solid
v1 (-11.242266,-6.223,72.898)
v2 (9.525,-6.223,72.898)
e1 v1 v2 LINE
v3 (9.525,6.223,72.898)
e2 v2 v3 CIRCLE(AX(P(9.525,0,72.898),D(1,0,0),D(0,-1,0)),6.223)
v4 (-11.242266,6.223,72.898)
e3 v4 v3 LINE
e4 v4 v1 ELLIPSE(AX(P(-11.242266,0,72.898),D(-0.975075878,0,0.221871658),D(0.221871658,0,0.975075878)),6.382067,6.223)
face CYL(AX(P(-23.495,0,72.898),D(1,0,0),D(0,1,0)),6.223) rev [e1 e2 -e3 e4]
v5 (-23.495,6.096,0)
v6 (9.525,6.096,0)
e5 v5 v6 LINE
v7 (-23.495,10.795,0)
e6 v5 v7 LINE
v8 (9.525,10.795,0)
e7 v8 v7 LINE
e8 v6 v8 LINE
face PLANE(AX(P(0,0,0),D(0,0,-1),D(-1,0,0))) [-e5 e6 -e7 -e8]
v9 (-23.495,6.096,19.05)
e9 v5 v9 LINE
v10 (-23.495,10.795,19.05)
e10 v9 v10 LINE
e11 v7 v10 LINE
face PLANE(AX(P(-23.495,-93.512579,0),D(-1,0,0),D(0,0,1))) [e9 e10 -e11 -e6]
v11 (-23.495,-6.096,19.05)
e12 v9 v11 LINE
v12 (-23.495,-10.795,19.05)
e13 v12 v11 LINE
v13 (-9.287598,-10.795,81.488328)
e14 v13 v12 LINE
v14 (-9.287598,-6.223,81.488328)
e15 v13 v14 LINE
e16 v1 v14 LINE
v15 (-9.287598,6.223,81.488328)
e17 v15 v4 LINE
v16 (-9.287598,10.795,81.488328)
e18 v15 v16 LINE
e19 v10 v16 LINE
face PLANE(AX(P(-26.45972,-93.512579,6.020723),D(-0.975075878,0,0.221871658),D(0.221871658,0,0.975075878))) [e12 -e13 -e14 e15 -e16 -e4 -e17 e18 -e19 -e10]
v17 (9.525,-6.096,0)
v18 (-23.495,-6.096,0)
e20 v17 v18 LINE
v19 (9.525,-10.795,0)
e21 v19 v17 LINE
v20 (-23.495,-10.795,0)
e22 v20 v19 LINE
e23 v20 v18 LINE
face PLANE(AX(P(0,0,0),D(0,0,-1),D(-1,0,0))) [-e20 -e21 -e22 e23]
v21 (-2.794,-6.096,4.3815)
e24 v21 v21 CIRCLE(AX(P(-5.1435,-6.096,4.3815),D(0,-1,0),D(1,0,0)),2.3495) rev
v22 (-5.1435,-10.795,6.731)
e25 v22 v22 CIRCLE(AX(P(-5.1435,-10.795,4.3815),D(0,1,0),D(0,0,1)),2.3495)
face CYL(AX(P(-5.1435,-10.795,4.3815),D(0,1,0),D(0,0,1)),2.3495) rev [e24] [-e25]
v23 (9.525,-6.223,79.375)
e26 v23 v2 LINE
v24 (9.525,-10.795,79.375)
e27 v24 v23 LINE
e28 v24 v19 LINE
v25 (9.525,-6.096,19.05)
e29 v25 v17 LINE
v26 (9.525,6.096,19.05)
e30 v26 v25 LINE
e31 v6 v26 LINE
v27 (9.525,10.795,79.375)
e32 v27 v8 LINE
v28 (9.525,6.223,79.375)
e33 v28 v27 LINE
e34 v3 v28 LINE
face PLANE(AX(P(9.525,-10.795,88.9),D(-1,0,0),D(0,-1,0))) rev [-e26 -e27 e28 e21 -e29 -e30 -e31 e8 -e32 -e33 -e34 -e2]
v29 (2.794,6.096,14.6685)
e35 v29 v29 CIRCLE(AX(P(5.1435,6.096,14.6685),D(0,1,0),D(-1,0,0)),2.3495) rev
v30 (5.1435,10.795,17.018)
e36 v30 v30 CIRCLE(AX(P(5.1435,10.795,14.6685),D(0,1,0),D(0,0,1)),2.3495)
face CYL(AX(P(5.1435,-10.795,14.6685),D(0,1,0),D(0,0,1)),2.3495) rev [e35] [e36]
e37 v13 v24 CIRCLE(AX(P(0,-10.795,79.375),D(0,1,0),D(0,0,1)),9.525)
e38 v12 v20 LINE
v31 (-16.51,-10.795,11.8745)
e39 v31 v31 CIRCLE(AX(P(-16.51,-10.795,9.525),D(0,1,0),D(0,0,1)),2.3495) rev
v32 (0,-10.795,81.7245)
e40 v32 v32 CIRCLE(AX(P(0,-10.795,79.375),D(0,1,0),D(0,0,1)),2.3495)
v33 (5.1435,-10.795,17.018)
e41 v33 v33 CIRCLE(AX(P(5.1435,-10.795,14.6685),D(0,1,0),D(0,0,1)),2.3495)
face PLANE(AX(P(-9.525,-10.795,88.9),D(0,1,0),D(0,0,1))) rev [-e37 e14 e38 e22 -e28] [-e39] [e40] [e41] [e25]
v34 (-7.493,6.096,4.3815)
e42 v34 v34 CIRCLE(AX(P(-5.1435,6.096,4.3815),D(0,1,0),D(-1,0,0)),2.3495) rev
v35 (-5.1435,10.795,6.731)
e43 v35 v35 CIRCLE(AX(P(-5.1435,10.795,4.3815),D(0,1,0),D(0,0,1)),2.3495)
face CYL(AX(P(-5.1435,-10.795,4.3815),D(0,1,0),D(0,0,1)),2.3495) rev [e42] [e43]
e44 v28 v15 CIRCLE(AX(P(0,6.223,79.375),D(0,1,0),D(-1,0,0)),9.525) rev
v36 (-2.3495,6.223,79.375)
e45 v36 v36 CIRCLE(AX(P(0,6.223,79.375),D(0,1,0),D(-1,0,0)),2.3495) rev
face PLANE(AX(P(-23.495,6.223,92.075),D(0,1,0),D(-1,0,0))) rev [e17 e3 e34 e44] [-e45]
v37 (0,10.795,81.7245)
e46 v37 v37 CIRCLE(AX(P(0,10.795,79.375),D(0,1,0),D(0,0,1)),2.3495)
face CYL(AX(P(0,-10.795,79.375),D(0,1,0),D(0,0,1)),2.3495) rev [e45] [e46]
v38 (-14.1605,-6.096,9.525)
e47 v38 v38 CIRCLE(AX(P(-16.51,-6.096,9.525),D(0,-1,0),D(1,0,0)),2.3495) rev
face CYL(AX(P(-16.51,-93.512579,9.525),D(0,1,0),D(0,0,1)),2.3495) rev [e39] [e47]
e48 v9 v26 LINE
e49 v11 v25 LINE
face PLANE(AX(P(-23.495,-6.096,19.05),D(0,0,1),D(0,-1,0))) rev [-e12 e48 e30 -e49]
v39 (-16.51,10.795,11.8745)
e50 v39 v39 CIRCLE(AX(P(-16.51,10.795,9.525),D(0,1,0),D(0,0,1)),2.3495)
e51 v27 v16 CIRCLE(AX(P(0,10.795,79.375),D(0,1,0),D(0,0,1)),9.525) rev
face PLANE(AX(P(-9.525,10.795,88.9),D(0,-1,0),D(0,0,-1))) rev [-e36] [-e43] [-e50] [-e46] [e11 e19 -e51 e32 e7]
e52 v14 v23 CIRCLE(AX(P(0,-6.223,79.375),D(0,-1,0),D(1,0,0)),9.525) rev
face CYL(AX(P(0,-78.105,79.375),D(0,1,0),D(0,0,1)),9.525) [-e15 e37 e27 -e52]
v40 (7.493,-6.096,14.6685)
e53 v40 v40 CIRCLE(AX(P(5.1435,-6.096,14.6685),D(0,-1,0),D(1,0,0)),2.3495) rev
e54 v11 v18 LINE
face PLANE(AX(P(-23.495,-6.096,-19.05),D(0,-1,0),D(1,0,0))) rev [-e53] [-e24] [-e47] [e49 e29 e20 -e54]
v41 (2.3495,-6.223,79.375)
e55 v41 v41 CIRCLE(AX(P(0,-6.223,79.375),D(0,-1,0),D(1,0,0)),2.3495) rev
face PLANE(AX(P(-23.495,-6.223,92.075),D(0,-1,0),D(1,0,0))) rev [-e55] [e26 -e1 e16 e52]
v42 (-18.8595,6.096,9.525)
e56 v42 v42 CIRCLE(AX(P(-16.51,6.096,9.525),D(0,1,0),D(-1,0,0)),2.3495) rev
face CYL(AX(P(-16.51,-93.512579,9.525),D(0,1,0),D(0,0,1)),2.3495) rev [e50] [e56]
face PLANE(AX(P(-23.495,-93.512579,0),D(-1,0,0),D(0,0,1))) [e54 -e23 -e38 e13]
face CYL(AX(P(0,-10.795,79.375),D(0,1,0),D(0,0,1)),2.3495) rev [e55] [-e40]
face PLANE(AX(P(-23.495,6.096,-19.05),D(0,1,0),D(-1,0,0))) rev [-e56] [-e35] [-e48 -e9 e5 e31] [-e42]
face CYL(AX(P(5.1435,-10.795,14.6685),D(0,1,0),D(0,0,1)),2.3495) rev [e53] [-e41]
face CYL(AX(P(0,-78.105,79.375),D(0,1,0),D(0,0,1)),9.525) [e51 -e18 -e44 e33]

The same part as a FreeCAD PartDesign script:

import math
import FreeCAD as App
import Part
import Sketcher
Q = App.Units.Quantity


def add_polygon(sketch, points):
    """Adds a closed chain of lines whose ends are joined by coincident constraints."""
    first, n = sketch.GeometryCount, len(points)
    for a, b in zip(points, points[1:] + points[:1]):
        sketch.addGeometry(Part.LineSegment(App.Vector(*a, 0), App.Vector(*b, 0)), False)
    for i in range(n):
        sketch.addConstraint(Sketcher.Constraint("Coincident", first + i, 2, first + (i + 1) % n, 1))

doc = App.newDocument("Part")
body = doc.addObject("PartDesign::Body", "Body")

sketch1 = body.newObject("Sketcher::SketchObject", "Sketch")
sketch1.AttachmentSupport = (doc.getObject("XY_Plane"), [""])
sketch1.MapMode = "FlatFace"
add_polygon(sketch1, [(-10, 11), (-10, -11), (10, -11), (10, 11)])
sketch1.addConstraint(Sketcher.Constraint("Vertical", 0))
sketch1.addConstraint(Sketcher.Constraint("Horizontal", 1))
sketch1.addConstraint(Sketcher.Constraint("Vertical", 2))
sketch1.addConstraint(Sketcher.Constraint("Horizontal", 3))
sketch1.addConstraint(Sketcher.Constraint("Symmetric", 0, 2, 2, 2, -1, 1))
sketch1.addConstraint(Sketcher.Constraint("DistanceX", 1, 1, 1, 2, Q("0.75 in")))
sketch1.addConstraint(Sketcher.Constraint("DistanceY", 0, 2, 0, 1, Q("0.85 in")))
pad1 = body.newObject("PartDesign::Pad", "Pad")
pad1.Profile = sketch1
pad1.Length = Q("3.5 in")

sketch2 = body.newObject("Sketcher::SketchObject", "Sketch001")
sketch2.AttachmentSupport = (doc.getObject("XZ_Plane"), [""])
sketch2.MapMode = "FlatFace"
sketch2.AttachmentOffset = App.Placement(App.Vector(0, 0, -0.425 * 25.4), App.Rotation())
sketch2.addGeometry(Part.ArcOfCircle(Part.Circle(App.Vector(0, 79, 0), App.Vector(0, 0, 1), 10), math.radians(0), math.radians(180)), False)
sketch2.addGeometry(Part.LineSegment(App.Vector(-10, 79, 0), App.Vector(-35, 79, 0)), False)
sketch2.addGeometry(Part.ArcOfCircle(Part.Circle(App.Vector(0, 79, 0), App.Vector(0, 0, 1), 35), math.radians(0), math.radians(180)), False)
sketch2.addGeometry(Part.LineSegment(App.Vector(35, 79, 0), App.Vector(10, 79, 0)), False)
sketch2.addConstraint(Sketcher.Constraint("Coincident", 0, 2, 1, 1))
sketch2.addConstraint(Sketcher.Constraint("Coincident", 1, 2, 2, 2))
sketch2.addConstraint(Sketcher.Constraint("Coincident", 2, 1, 3, 1))
sketch2.addConstraint(Sketcher.Constraint("Coincident", 3, 2, 0, 1))
sketch2.addConstraint(Sketcher.Constraint("Horizontal", 1))
sketch2.addConstraint(Sketcher.Constraint("Horizontal", 3))
sketch2.addConstraint(Sketcher.Constraint("Coincident", 2, 3, 0, 3))
sketch2.addConstraint(Sketcher.Constraint("Symmetric", 1, 2, 2, 1, -2))
sketch2.addConstraint(Sketcher.Constraint("Horizontal", 2, 3, 0, 2))
sketch2.addConstraint(Sketcher.Constraint("DistanceX", 1, 2, 1, 1, Q("1 in")))
sketch2.addConstraint(Sketcher.Constraint("Radius", 0, Q("0.375 in")))
sketch2.addConstraint(Sketcher.Constraint("DistanceY", -1, 1, 0, 3, Q("3.125 in")))
pocket1 = body.newObject("PartDesign::Pocket", "Pocket")
pocket1.Profile = sketch2
pocket1.Type = "ThroughAll"
pocket1.Midplane = True

sketch3 = body.newObject("Sketcher::SketchObject", "Sketch002")
sketch3.AttachmentSupport = (doc.getObject("XZ_Plane"), [""])
sketch3.MapMode = "FlatFace"
sketch3.AttachmentOffset = App.Placement(App.Vector(0, 0, -0.425 * 25.4), App.Rotation())
sketch3.addGeometry(Part.Circle(App.Vector(0, 79.4, 0), App.Vector(0, 0, 1), 2.3), False)
sketch3.addGeometry(Part.Circle(App.Vector(5.1, 14.7, 0), App.Vector(0, 0, 1), 2.3), False)
sketch3.addGeometry(Part.Circle(App.Vector(-5.1, 4.4, 0), App.Vector(0, 0, 1), 2.3), False)
sketch3.addConstraint(Sketcher.Constraint("Equal", 0, 1))
sketch3.addConstraint(Sketcher.Constraint("Equal", 1, 2))
sketch3.addConstraint(Sketcher.Constraint("PointOnObject", 0, 3, -2))
sketch3.addConstraint(Sketcher.Constraint("Diameter", 0, Q("0.185 in")))
sketch3.addConstraint(Sketcher.Constraint("DistanceY", -1, 1, 0, 3, Q("3.125 in")))
sketch3.addConstraint(Sketcher.Constraint("DistanceX", 2, 3, 1, 3, Q("0.405 in")))
sketch3.addConstraint(Sketcher.Constraint("DistanceY", 2, 3, 1, 3, Q("0.405 in")))
sketch3.addConstraint(Sketcher.Constraint("DistanceX", -1, 1, 1, 3, Q("0.2025 in")))
sketch3.addConstraint(Sketcher.Constraint("DistanceY", -1, 1, 1, 3, Q("0.5775 in")))
pocket2 = body.newObject("PartDesign::Pocket", "Pocket001")
pocket2.Profile = sketch3
pocket2.Type = "ThroughAll"
pocket2.Reversed = True

sketch4 = body.newObject("Sketcher::SketchObject", "Sketch003")
sketch4.AttachmentSupport = (doc.getObject("XZ_Plane"), [""])
sketch4.MapMode = "FlatFace"
sketch4.AttachmentOffset = App.Placement(App.Vector(0, 0, 0.425 * 25.4), App.Rotation())
sketch4.addGeometry(Part.LineSegment(App.Vector(-9.5, 79.4, 0), App.Vector(-9.5, 0, 0)), False)
sketch4.addGeometry(Part.LineSegment(App.Vector(-9.5, 0, 0), App.Vector(-23.5, 0, 0)), False)
sketch4.addGeometry(Part.LineSegment(App.Vector(-23.5, 0, 0), App.Vector(-23.5, 19.1, 0)), False)
sketch4.addGeometry(Part.LineSegment(App.Vector(-23.5, 19.1, 0), App.Vector(-9.3, 81.5, 0)), False)
sketch4.addGeometry(Part.ArcOfCircle(Part.Circle(App.Vector(0, 79.4, 0), App.Vector(0, 0, 1), 9.5), math.radians(167.18), math.radians(180)), False)
sketch4.addGeometry(Part.Circle(App.Vector(-16.5, 9.5, 0), App.Vector(0, 0, 1), 2.3), False)
sketch4.addConstraint(Sketcher.Constraint("Coincident", 0, 2, 1, 1))
sketch4.addConstraint(Sketcher.Constraint("Coincident", 1, 2, 2, 1))
sketch4.addConstraint(Sketcher.Constraint("Coincident", 2, 2, 3, 1))
sketch4.addConstraint(Sketcher.Constraint("Tangent", 3, 2, 4, 1))
sketch4.addConstraint(Sketcher.Constraint("Tangent", 4, 2, 0, 1))
sketch4.addConstraint(Sketcher.Constraint("Vertical", 0))
sketch4.addConstraint(Sketcher.Constraint("Horizontal", 1))
sketch4.addConstraint(Sketcher.Constraint("Vertical", 2))
sketch4.addConstraint(Sketcher.Constraint("PointOnObject", 4, 3, -2))
sketch4.addConstraint(Sketcher.Constraint("PointOnObject", 0, 2, -1))
sketch4.addConstraint(Sketcher.Constraint("Diameter", 5, Q("0.185 in")))
sketch4.addConstraint(Sketcher.Constraint("Radius", 4, Q("0.375 in")))
sketch4.addConstraint(Sketcher.Constraint("DistanceX", 1, 2, 1, 1, Q("0.55 in")))
sketch4.addConstraint(Sketcher.Constraint("DistanceY", 2, 1, 2, 2, Q("0.75 in")))
sketch4.addConstraint(Sketcher.Constraint("DistanceY", 0, 2, 0, 1, Q("3.125 in")))
sketch4.addConstraint(Sketcher.Constraint("DistanceX", 5, 3, -1, 1, Q("0.65 in")))
sketch4.addConstraint(Sketcher.Constraint("DistanceY", 5, 3, 4, 3, Q("2.75 in")))
pad2 = body.newObject("PartDesign::Pad", "Pad001")
pad2.Profile = sketch4
pad2.Length = Q("0.85 in")
pad2.Reversed = True

sketch5 = body.newObject("Sketcher::SketchObject", "Sketch004")
sketch5.AttachmentSupport = (doc.getObject("YZ_Plane"), [""])
sketch5.MapMode = "FlatFace"
sketch5.AttachmentOffset = App.Placement(App.Vector(0, 0, 0.375 * 25.4), App.Rotation())
add_polygon(sketch5, [(6, 19), (-6, 19), (-6, -19), (6, -19)])
sketch5.addGeometry(Part.LineSegment(App.Vector(-6, 92, 0), App.Vector(-6, 73, 0)), False)
sketch5.addGeometry(Part.ArcOfCircle(Part.Circle(App.Vector(0, 73, 0), App.Vector(0, 0, 1), 6), math.radians(180), math.radians(360)), False)
sketch5.addGeometry(Part.LineSegment(App.Vector(6, 73, 0), App.Vector(6, 92, 0)), False)
sketch5.addGeometry(Part.LineSegment(App.Vector(6, 92, 0), App.Vector(-6, 92, 0)), False)
sketch5.addConstraint(Sketcher.Constraint("Tangent", 4, 2, 5, 1))
sketch5.addConstraint(Sketcher.Constraint("Tangent", 5, 2, 6, 1))
sketch5.addConstraint(Sketcher.Constraint("Coincident", 6, 2, 7, 1))
sketch5.addConstraint(Sketcher.Constraint("Coincident", 7, 2, 4, 1))
sketch5.addConstraint(Sketcher.Constraint("Horizontal", 0))
sketch5.addConstraint(Sketcher.Constraint("Vertical", 1))
sketch5.addConstraint(Sketcher.Constraint("Horizontal", 2))
sketch5.addConstraint(Sketcher.Constraint("Vertical", 3))
sketch5.addConstraint(Sketcher.Constraint("Vertical", 4))
sketch5.addConstraint(Sketcher.Constraint("Vertical", 6))
sketch5.addConstraint(Sketcher.Constraint("Horizontal", 7))
sketch5.addConstraint(Sketcher.Constraint("Symmetric", 0, 2, 2, 2, -1, 1))
sketch5.addConstraint(Sketcher.Constraint("PointOnObject", 5, 3, -2))
sketch5.addConstraint(Sketcher.Constraint("DistanceY", 1, 2, 1, 1, Q("1.5 in")))
sketch5.addConstraint(Sketcher.Constraint("Radius", 5, Q("0.245 in")))
sketch5.addConstraint(Sketcher.Constraint("DistanceX", 0, 2, 0, 1, Q("0.48 in")))
sketch5.addConstraint(Sketcher.Constraint("DistanceY", 4, 2, 4, 1, Q("0.755 in")))
sketch5.addConstraint(Sketcher.Constraint("DistanceY", -1, 1, 5, 3, Q("2.87 in")))
pocket3 = body.newObject("PartDesign::Pocket", "Pocket002")
pocket3.Profile = sketch5
pocket3.Type = "ThroughAll"

doc.recompute()
